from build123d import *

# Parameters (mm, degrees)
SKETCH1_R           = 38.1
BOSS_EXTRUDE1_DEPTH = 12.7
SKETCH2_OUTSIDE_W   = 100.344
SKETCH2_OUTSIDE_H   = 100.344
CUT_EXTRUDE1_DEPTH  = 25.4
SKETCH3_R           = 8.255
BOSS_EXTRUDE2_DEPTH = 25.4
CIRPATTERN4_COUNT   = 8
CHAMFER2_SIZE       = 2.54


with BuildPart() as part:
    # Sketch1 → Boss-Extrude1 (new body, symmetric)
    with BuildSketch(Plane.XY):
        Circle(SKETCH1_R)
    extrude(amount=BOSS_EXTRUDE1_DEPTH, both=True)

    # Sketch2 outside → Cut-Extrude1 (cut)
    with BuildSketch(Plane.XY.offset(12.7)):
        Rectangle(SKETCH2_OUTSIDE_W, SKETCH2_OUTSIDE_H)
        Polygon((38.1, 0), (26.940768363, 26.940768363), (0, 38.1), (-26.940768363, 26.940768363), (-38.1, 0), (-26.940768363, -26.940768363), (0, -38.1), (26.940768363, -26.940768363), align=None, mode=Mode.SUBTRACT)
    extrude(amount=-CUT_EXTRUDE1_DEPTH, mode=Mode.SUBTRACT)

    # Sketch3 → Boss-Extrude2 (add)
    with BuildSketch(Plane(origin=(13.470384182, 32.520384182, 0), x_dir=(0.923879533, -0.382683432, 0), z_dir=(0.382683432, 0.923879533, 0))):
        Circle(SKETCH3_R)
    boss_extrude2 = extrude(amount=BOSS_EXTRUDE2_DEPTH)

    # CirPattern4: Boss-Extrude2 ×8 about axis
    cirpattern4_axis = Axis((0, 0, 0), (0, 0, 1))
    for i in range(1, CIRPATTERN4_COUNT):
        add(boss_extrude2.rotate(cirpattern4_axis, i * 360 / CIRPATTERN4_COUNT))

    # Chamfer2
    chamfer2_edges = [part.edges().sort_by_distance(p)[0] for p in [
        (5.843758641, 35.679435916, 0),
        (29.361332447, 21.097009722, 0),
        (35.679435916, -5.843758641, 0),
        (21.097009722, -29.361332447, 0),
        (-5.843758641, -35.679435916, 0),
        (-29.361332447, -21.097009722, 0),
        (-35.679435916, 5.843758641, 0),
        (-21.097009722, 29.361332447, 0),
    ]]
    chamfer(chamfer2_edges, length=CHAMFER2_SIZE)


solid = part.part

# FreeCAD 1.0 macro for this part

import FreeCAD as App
import Part
import Sketcher
from FreeCAD import Vector
Q = App.Units.Quantity


def edges_at(feature, points):
    """Names of the edges that pass closest to the given points."""
    edges = feature.Shape.Edges
    near = lambda p: min(range(len(edges)), key=lambda i: edges[i].distToShape(Part.Vertex(*p))[0])
    return sorted({f"Edge{near(p) + 1}" for p in points})


def add_polygon(sketch, points):
    """Adds a closed chain of lines whose ends are joined by coincident constraints."""
    first, n = sketch.GeometryCount, len(points)
    for a, b in zip(points, points[1:] + points[:1]):
        sketch.addGeometry(Part.LineSegment(App.Vector(*a, 0), App.Vector(*b, 0)), False)
    for i in range(n):
        sketch.addConstraint(Sketcher.Constraint("Coincident", first + i, 2, first + (i + 1) % n, 1))

doc = App.newDocument("Part")
body = doc.addObject("PartDesign::Body", "Body")

# Sketch on XY plane
sketch1 = body.newObject("Sketcher::SketchObject", "Sketch")
sketch1.AttachmentSupport = (doc.getObject("XY_Plane"), [""])
sketch1.MapMode = "FlatFace"
sketch1.addGeometry(Part.Circle(Vector(0, 0, 0), Vector(0, 0, 1), 38.1), False)
sketch1.addConstraint([
    Sketcher.Constraint("Coincident", 0, 3, -1, 1),
    Sketcher.Constraint("Diameter", 0, Q("3 in")),
])
pad1 = body.newObject("PartDesign::Pad", "Pad")
pad1.Profile = sketch1
pad1.Length = Q("1 in")
pad1.Midplane = True

# Sketch on XY plane
sketch2 = body.newObject("Sketcher::SketchObject", "Sketch001")
sketch2.AttachmentSupport = (doc.getObject("XY_Plane"), [""])
sketch2.MapMode = "FlatFace"
sketch2.AttachmentOffset = App.Placement(Vector(0, 0, 0.5 * 25.4), App.Rotation())
add_polygon(sketch2, [(-50.172, 50.172), (-50.172, -50.172), (50.172, -50.172), (50.172, 50.172)])  # lines 0-3
add_polygon(sketch2, [(26.940768, 26.940768), (38.1, 0), (26.940768, -26.940768), (0, -38.1), (-26.940768, -26.940768), (-38.1, 0), (-26.940768, 26.940768), (0, 38.1)])  # lines 4-11
sketch2.addConstraint([
    Sketcher.Constraint("Vertical", 0),
    Sketcher.Constraint("Horizontal", 1),
    Sketcher.Constraint("Vertical", 2),
    Sketcher.Constraint("Horizontal", 3),
    Sketcher.Constraint("Symmetric", 0, 2, 2, 2, -1, 1),
    Sketcher.Constraint("Symmetric", 4, 2, 8, 2, -1, 1),
    Sketcher.Constraint("Symmetric", 5, 2, 9, 2, -1, 1),
    Sketcher.Constraint("Symmetric", 6, 2, 10, 2, -1, 1),
    Sketcher.Constraint("Symmetric", 7, 2, 11, 2, -1, 1),
    Sketcher.Constraint("Symmetric", 5, 2, 7, 2, -2),
    Sketcher.Constraint("PointOnObject", 4, 2, -1),
    Sketcher.Constraint("PointOnObject", 6, 2, -2),
    Sketcher.Constraint("Perpendicular", 4, 6),
    Sketcher.Constraint("Equal", 3, 0),
    Sketcher.Constraint("Equal", 5, 6),
    Sketcher.Constraint("DistanceX", -1, 1, 4, 2, Q("1.5 in")),
    Sketcher.Constraint("Angle", 4, Q("-67.5 deg")),
    Sketcher.Constraint("DistanceX", 1, 1, 1, 2, Q("100.344 mm")),
])
pocket1 = body.newObject("PartDesign::Pocket", "Pocket")
pocket1.Profile = sketch2
pocket1.Length = Q("1 in")

# Sketch on an angled plane
sketch3 = body.newObject("Sketcher::SketchObject", "Sketch002")
sketch3.Placement = App.Placement(Vector(13.470384, 32.520384, 0), App.Rotation(Vector(0.923879533, -0.382683432, 0), Vector(0, 0, -1.000000001), Vector(0.382683432, 0.923879533, 0), "ZXY"))
sketch3.addGeometry(Part.Circle(Vector(0, 0, 0), Vector(0, 0, 1), 8.255), False)
sketch3.addConstraint([
    Sketcher.Constraint("Coincident", 0, 3, -1, 1),
    Sketcher.Constraint("Diameter", 0, Q("0.65 in")),
])
pad2 = body.newObject("PartDesign::Pad", "Pad001")
pad2.Profile = sketch3
pad2.Length = Q("1 in")
doc.recompute()

polarpattern = body.newObject("PartDesign::PolarPattern", "PolarPattern")
polarpattern.Originals = [pad2]
polarpattern.Axis = (doc.getObject("Z_Axis"), [""])
polarpattern.Angle = 360
polarpattern.Occurrences = 8
body.Tip = polarpattern
doc.recompute()

chamfer = body.newObject("PartDesign::Chamfer", "Chamfer")
chamfer.Base = (polarpattern, edges_at(polarpattern, [
    (5.844, 35.679, 0),
    (29.361, 21.097, 0),
    (35.679, -5.844, 0),
    (21.097, -29.361, 0),
    (-5.844, -35.679, 0),
    (-29.361, -21.097, 0),
    (-35.679, 5.844, 0),
    (-21.097, 29.361, 0),
]))
chamfer.Size = Q("0.1 in")

doc.recompute()
